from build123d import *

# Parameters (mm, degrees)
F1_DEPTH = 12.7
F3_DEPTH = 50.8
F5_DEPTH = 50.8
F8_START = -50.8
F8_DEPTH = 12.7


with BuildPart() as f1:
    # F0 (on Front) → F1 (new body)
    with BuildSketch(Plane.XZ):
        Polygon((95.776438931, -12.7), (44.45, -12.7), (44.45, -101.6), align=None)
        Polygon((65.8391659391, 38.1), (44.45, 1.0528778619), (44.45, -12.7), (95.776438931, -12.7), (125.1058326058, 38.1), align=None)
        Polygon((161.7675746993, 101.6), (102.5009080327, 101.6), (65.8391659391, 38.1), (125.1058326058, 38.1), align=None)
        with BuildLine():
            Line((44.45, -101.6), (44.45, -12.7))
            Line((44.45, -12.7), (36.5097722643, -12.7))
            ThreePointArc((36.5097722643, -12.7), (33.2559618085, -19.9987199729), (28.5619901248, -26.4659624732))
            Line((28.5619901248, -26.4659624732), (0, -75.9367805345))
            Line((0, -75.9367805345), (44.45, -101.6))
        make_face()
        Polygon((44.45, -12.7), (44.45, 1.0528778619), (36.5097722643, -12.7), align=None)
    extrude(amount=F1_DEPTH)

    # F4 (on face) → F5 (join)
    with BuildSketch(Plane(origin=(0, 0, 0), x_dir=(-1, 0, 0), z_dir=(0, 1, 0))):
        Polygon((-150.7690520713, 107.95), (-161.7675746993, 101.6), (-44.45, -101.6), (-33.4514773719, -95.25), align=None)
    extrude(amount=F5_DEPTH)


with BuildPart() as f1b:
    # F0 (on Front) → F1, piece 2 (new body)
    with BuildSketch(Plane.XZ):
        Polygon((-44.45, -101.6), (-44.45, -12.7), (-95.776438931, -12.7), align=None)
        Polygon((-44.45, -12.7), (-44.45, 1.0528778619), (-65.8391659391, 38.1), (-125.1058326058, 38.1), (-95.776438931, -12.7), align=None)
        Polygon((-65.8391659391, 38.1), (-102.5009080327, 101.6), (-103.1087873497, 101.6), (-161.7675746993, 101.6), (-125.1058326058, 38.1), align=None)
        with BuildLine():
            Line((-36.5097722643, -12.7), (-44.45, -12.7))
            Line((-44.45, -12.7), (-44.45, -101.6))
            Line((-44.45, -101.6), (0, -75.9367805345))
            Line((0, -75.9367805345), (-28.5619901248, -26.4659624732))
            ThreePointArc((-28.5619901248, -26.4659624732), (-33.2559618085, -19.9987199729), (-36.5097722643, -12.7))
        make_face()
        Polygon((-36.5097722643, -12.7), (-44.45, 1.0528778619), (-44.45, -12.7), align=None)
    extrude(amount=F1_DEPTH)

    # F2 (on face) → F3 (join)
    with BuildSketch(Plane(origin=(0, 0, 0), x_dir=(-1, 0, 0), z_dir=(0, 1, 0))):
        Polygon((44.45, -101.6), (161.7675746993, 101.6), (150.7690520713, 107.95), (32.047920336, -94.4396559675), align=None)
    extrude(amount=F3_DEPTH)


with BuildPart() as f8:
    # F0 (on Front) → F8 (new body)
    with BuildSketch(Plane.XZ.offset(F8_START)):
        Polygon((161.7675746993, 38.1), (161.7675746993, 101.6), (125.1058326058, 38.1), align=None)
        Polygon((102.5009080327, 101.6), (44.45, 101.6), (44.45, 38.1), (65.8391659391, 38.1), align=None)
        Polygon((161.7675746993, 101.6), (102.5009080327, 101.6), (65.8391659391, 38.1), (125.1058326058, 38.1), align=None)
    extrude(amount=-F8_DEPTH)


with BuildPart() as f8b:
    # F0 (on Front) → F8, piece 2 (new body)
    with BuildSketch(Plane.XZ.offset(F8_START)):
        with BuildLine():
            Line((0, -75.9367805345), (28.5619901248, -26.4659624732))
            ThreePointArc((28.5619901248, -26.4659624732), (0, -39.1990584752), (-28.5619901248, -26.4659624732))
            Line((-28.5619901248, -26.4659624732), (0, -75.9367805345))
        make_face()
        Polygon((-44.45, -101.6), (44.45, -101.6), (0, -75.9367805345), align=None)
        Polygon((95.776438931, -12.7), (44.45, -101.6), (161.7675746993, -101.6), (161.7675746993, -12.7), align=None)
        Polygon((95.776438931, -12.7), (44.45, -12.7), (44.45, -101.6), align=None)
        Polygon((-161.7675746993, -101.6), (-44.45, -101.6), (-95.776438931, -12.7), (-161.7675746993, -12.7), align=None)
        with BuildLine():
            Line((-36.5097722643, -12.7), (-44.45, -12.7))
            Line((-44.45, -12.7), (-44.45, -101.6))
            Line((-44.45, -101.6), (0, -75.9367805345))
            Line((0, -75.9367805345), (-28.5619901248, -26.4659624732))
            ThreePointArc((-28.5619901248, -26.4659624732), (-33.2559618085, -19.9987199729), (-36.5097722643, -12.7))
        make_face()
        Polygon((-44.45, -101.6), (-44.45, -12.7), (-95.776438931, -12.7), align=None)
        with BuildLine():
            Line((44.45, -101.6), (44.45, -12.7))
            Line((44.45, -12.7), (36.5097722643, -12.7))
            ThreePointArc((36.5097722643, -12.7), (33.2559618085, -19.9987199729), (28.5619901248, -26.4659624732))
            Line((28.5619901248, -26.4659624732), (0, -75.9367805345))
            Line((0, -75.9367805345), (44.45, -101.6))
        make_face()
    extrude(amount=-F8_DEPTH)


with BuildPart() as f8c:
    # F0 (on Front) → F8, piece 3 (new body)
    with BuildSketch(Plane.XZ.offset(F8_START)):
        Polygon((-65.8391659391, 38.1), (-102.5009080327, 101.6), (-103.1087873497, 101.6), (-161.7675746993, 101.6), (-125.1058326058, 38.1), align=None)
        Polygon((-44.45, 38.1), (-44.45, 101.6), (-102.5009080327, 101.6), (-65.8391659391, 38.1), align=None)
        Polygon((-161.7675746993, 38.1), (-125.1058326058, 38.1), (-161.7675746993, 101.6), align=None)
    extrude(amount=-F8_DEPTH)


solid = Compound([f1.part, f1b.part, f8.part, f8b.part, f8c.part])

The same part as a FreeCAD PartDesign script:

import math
import FreeCAD as App
import Part
import Sketcher
Q = App.Units.Quantity


def add_polygon(sketch, points):
    """Adds a closed chain of lines whose ends are joined by coincident constraints."""
    first, n = sketch.GeometryCount, len(points)
    for a, b in zip(points, points[1:] + points[:1]):
        sketch.addGeometry(Part.LineSegment(App.Vector(*a, 0), App.Vector(*b, 0)), False)
    for i in range(n):
        sketch.addConstraint(Sketcher.Constraint("Coincident", first + i, 2, first + (i + 1) % n, 1))

doc = App.newDocument("Part")
body = doc.addObject("PartDesign::Body", "Body")

# Sketch on XZ plane
sketch1 = body.newObject("Sketcher::SketchObject", "Sketch")
sketch1.AttachmentSupport = (doc.getObject("XZ_Plane"), [""])
sketch1.MapMode = "FlatFace"
sketch1.addGeometry(Part.LineSegment(App.Vector(29, -26, 0), App.Vector(0, -76, 0)), False)
sketch1.addGeometry(Part.LineSegment(App.Vector(0, -76, 0), App.Vector(44, -102, 0)), False)
sketch1.addGeometry(Part.LineSegment(App.Vector(44, -102, 0), App.Vector(162, 102, 0)), False)
sketch1.addGeometry(Part.LineSegment(App.Vector(162, 102, 0), App.Vector(103, 102, 0)), False)
sketch1.addGeometry(Part.LineSegment(App.Vector(103, 102, 0), App.Vector(66, 38, 0)), False)
sketch1.addGeometry(Part.LineSegment(App.Vector(66, 38, 0), App.Vector(37, -13, 0)), False)
sketch1.addGeometry(Part.ArcOfCircle(Part.Circle(App.Vector(0, -1, 0), App.Vector(0, 0, 1), 38), math.radians(-42), math.radians(-18)), False)
sketch1.addConstraint(Sketcher.Constraint("Coincident", 0, 2, 1, 1))
sketch1.addConstraint(Sketcher.Constraint("Coincident", 1, 2, 2, 1))
sketch1.addConstraint(Sketcher.Constraint("Coincident", 2, 2, 3, 1))
sketch1.addConstraint(Sketcher.Constraint("Coincident", 3, 2, 4, 1))
sketch1.addConstraint(Sketcher.Constraint("Coincident", 4, 2, 5, 1))
sketch1.addConstraint(Sketcher.Constraint("Coincident", 5, 2, 6, 2))
sketch1.addConstraint(Sketcher.Constraint("Coincident", 6, 1, 0, 1))
sketch1.addConstraint(Sketcher.Constraint("Horizontal", 3))
sketch1.addConstraint(Sketcher.Constraint("PointOnObject", 6, 3, -2))
sketch1.addConstraint(Sketcher.Constraint("PointOnObject", 0, 2, -2))
sketch1.addConstraint(Sketcher.Constraint("Perpendicular", 0, 1))
sketch1.addConstraint(Sketcher.Constraint("Perpendicular", 1, 2))
sketch1.addConstraint(Sketcher.Constraint("Parallel", 2, 4))
sketch1.addConstraint(Sketcher.Constraint("Parallel", 4, 5))
sketch1.addConstraint(Sketcher.Constraint("DistanceY", 1, 2, -1, 1, Q("4 in")))
sketch1.addConstraint(Sketcher.Constraint("DistanceY", -1, 1, 2, 2, Q("4 in")))
sketch1.addConstraint(Sketcher.Constraint("Angle", 0, Q("-120 deg")))
sketch1.addConstraint(Sketcher.Constraint("DistanceY", 5, 2, 4, 2, Q("2 in")))
sketch1.addConstraint(Sketcher.Constraint("DistanceY", -1, 1, 4, 2, Q("1.5 in")))
sketch1.addConstraint(Sketcher.Constraint("DistanceX", -1, 1, 1, 2, Q("1.75 in")))
sketch1.addConstraint(Sketcher.Constraint("Radius", 6, 38.400677))
sketch1.addConstraint(Sketcher.Constraint("DistanceY", 0, 2, 6, 3, 75.138399))
pad1 = body.newObject("PartDesign::Pad", "Pad")
pad1.Profile = sketch1
pad1.Length = Q("0.5 in")

# Sketch on XZ plane
sketch2 = body.newObject("Sketcher::SketchObject", "Sketch001")
sketch2.AttachmentSupport = (doc.getObject("XZ_Plane"), [""])
sketch2.MapMode = "FlatFace"
add_polygon(sketch2, [(151, 108), (162, 102), (44, -102), (33, -95)])  # lines 0-3
sketch2.addConstraint(Sketcher.Constraint("Perpendicular", 0, 1))
sketch2.addConstraint(Sketcher.Constraint("Perpendicular", 1, 2))
sketch2.addConstraint(Sketcher.Constraint("Perpendicular", 2, 3))
sketch2.addConstraint(Sketcher.Constraint("DistanceY", -1, 1, 0, 2, Q("4 in")))
sketch2.addConstraint(Sketcher.Constraint("DistanceY", 1, 2, -1, 1, Q("4 in")))
sketch2.addConstraint(Sketcher.Constraint("Angle", 0, Q("-30 deg")))
sketch2.addConstraint(Sketcher.Constraint("Distance", 0, Q("0.5 in")))
sketch2.addConstraint(Sketcher.Constraint("DistanceX", -1, 1, 1, 2, Q("1.75 in")))
pad2 = body.newObject("PartDesign::Pad", "Pad001")
pad2.Profile = sketch2
pad2.Length = Q("2 in")
pad2.Reversed = True
body2 = doc.addObject("PartDesign::Body", "Body001")

# Sketch on XZ plane
sketch3 = body2.newObject("Sketcher::SketchObject", "Sketch002")
sketch3.AttachmentSupport = (doc.getObject("XZ_Plane001"), [""])
sketch3.MapMode = "FlatFace"
sketch3.addGeometry(Part.ArcOfCircle(Part.Circle(App.Vector(0, -1, 0), App.Vector(0, 0, 1), 38), math.radians(-162), math.radians(-138)), False)
sketch3.addGeometry(Part.LineSegment(App.Vector(-37, -13, 0), App.Vector(-66, 38, 0)), False)
sketch3.addGeometry(Part.LineSegment(App.Vector(-66, 38, 0), App.Vector(-103, 102, 0)), False)
sketch3.addGeometry(Part.LineSegment(App.Vector(-103, 102, 0), App.Vector(-162, 102, 0)), False)
sketch3.addGeometry(Part.LineSegment(App.Vector(-162, 102, 0), App.Vector(-44, -102, 0)), False)
sketch3.addGeometry(Part.LineSegment(App.Vector(-44, -102, 0), App.Vector(0, -76, 0)), False)
sketch3.addGeometry(Part.LineSegment(App.Vector(0, -76, 0), App.Vector(-29, -26, 0)), False)
sketch3.addConstraint(Sketcher.Constraint("Coincident", 0, 1, 1, 1))
sketch3.addConstraint(Sketcher.Constraint("Coincident", 1, 2, 2, 1))
sketch3.addConstraint(Sketcher.Constraint("Coincident", 2, 2, 3, 1))
sketch3.addConstraint(Sketcher.Constraint("Coincident", 3, 2, 4, 1))
sketch3.addConstraint(Sketcher.Constraint("Coincident", 4, 2, 5, 1))
sketch3.addConstraint(Sketcher.Constraint("Coincident", 5, 2, 6, 1))
sketch3.addConstraint(Sketcher.Constraint("Coincident", 6, 2, 0, 2))
sketch3.addConstraint(Sketcher.Constraint("Horizontal", 3))
sketch3.addConstraint(Sketcher.Constraint("PointOnObject", 0, 3, -2))
sketch3.addConstraint(Sketcher.Constraint("PointOnObject", 5, 2, -2))
sketch3.addConstraint(Sketcher.Constraint("Parallel", 1, 2))
sketch3.addConstraint(Sketcher.Constraint("Parallel", 2, 4))
sketch3.addConstraint(Sketcher.Constraint("Perpendicular", 4, 5))
sketch3.addConstraint(Sketcher.Constraint("Perpendicular", 5, 6))
sketch3.addConstraint(Sketcher.Constraint("DistanceY", -1, 1, 2, 2, Q("4 in")))
sketch3.addConstraint(Sketcher.Constraint("DistanceY", 4, 2, -1, 1, Q("4 in")))
sketch3.addConstraint(Sketcher.Constraint("Angle", 1, Q("120 deg")))
sketch3.addConstraint(Sketcher.Constraint("DistanceY", 0, 1, 1, 2, Q("2 in")))
sketch3.addConstraint(Sketcher.Constraint("DistanceY", 0, 1, -1, 1, Q("0.5 in")))
sketch3.addConstraint(Sketcher.Constraint("DistanceX", 4, 2, -1, 1, Q("1.75 in")))
sketch3.addConstraint(Sketcher.Constraint("Radius", 0, 38.400677))
sketch3.addConstraint(Sketcher.Constraint("DistanceY", 5, 2, 0, 3, 75.138399))
pad3 = body2.newObject("PartDesign::Pad", "Pad002")
pad3.Profile = sketch3
pad3.Length = Q("0.5 in")

# Sketch on XZ plane
sketch4 = body2.newObject("Sketcher::SketchObject", "Sketch003")
sketch4.AttachmentSupport = (doc.getObject("XZ_Plane001"), [""])
sketch4.MapMode = "FlatFace"
add_polygon(sketch4, [(-44, -102), (-162, 102), (-151, 108), (-32, -94)])  # lines 0-3
sketch4.addConstraint(Sketcher.Constraint("Perpendicular", 0, 1))
sketch4.addConstraint(Sketcher.Constraint("Parallel", 1, 3))
sketch4.addConstraint(Sketcher.Constraint("DistanceY", -1, 1, 0, 2, Q("4 in")))
sketch4.addConstraint(Sketcher.Constraint("DistanceY", 3, 2, -1, 1, Q("4 in")))
sketch4.addConstraint(Sketcher.Constraint("Angle", 0, Q("120 deg")))
sketch4.addConstraint(Sketcher.Constraint("Distance", 1, Q("0.5 in")))
sketch4.addConstraint(Sketcher.Constraint("DistanceX", 3, 2, -1, 1, Q("1.75 in")))
sketch4.addConstraint(Sketcher.Constraint("Distance", 3, 14.320688))
pad4 = body2.newObject("PartDesign::Pad", "Pad003")
pad4.Profile = sketch4
pad4.Length = Q("2 in")
pad4.Reversed = True
body3 = doc.addObject("PartDesign::Body", "Body002")

# Sketch on XZ plane
sketch5 = body3.newObject("Sketcher::SketchObject", "Sketch004")
sketch5.AttachmentSupport = (doc.getObject("XZ_Plane002"), [""])
sketch5.MapMode = "FlatFace"
sketch5.AttachmentOffset = App.Placement(App.Vector(0, 0, -2 * 25.4), App.Rotation())
add_polygon(sketch5, [(162, 38), (162, 102), (44, 102), (44, 38)])  # lines 0-3
sketch5.addConstraint(Sketcher.Constraint("Vertical", 0))
sketch5.addConstraint(Sketcher.Constraint("Horizontal", 1))
sketch5.addConstraint(Sketcher.Constraint("Vertical", 2))
sketch5.addConstraint(Sketcher.Constraint("Horizontal", 3))
sketch5.addConstraint(Sketcher.Constraint("DistanceY", 0, 1, 0, 2, Q("2.5 in")))
sketch5.addConstraint(Sketcher.Constraint("DistanceY", -1, 1, 0, 2, Q("4 in")))
sketch5.addConstraint(Sketcher.Constraint("DistanceX", -1, 1, 1, 2, Q("1.75 in")))
sketch5.addConstraint(Sketcher.Constraint("DistanceX", 1, 2, 1, 1, 117.317575))
pad5 = body3.newObject("PartDesign::Pad", "Pad004")
pad5.Profile = sketch5
pad5.Length = Q("0.5 in")
pad5.Reversed = True
body4 = doc.addObject("PartDesign::Body", "Body003")

# Sketch on XZ plane
sketch6 = body4.newObject("Sketcher::SketchObject", "Sketch005")
sketch6.AttachmentSupport = (doc.getObject("XZ_Plane003"), [""])
sketch6.MapMode = "FlatFace"
sketch6.AttachmentOffset = App.Placement(App.Vector(0, 0, -2 * 25.4), App.Rotation())
sketch6.addGeometry(Part.ArcOfCircle(Part.Circle(App.Vector(0, -1, 0), App.Vector(0, 0, 1), 38), math.radians(-138), math.radians(-42)), False)
sketch6.addGeometry(Part.ArcOfCircle(Part.Circle(App.Vector(0, -1, 0), App.Vector(0, 0, 1), 38), math.radians(-162), math.radians(-138)), False)
sketch6.addGeometry(Part.LineSegment(App.Vector(-37, -13, 0), App.Vector(-162, -13, 0)), False)
sketch6.addGeometry(Part.LineSegment(App.Vector(-162, -13, 0), App.Vector(-162, -102, 0)), False)
sketch6.addGeometry(Part.LineSegment(App.Vector(-162, -102, 0), App.Vector(162, -102, 0)), False)
sketch6.addGeometry(Part.LineSegment(App.Vector(162, -102, 0), App.Vector(162, -13, 0)), False)
sketch6.addGeometry(Part.LineSegment(App.Vector(162, -13, 0), App.Vector(37, -13, 0)), False)
sketch6.addGeometry(Part.ArcOfCircle(Part.Circle(App.Vector(0, -1, 0), App.Vector(0, 0, 1), 38), math.radians(-42), math.radians(-18)), False)
sketch6.addConstraint(Sketcher.Constraint("Tangent", 0, 1, 1, 2))
sketch6.addConstraint(Sketcher.Constraint("Coincident", 1, 1, 2, 1))
sketch6.addConstraint(Sketcher.Constraint("Coincident", 2, 2, 3, 1))
sketch6.addConstraint(Sketcher.Constraint("Coincident", 3, 2, 4, 1))
sketch6.addConstraint(Sketcher.Constraint("Coincident", 4, 2, 5, 1))
sketch6.addConstraint(Sketcher.Constraint("Coincident", 5, 2, 6, 1))
sketch6.addConstraint(Sketcher.Constraint("Coincident", 6, 2, 7, 2))
sketch6.addConstraint(Sketcher.Constraint("Tangent", 7, 1, 0, 2))
sketch6.addConstraint(Sketcher.Constraint("Horizontal", 2))
sketch6.addConstraint(Sketcher.Constraint("Vertical", 3))
sketch6.addConstraint(Sketcher.Constraint("Horizontal", 4))
sketch6.addConstraint(Sketcher.Constraint("Vertical", 5))
sketch6.addConstraint(Sketcher.Constraint("Horizontal", 6))
sketch6.addConstraint(Sketcher.Constraint("Equal", 0, 1))
sketch6.addConstraint(Sketcher.Constraint("Equal", 1, 7))
sketch6.addConstraint(Sketcher.Constraint("Symmetric", 2, 2, 5, 2, -2))
sketch6.addConstraint(Sketcher.Constraint("Symmetric", 0, 1, 7, 1, -2))
sketch6.addConstraint(Sketcher.Constraint("DistanceY", 3, 2, 3, 1, Q("3.5 in")))
sketch6.addConstraint(Sketcher.Constraint("DistanceY", 3, 2, -1, 1, Q("4 in")))
sketch6.addConstraint(Sketcher.Constraint("Radius", 0, 38.400677))
sketch6.addConstraint(Sketcher.Constraint("DistanceX", 4, 1, 4, 2, 323.535149))
sketch6.addConstraint(Sketcher.Constraint("DistanceX", 2, 2, 2, 1, 125.257802))
sketch6.addConstraint(Sketcher.Constraint("DistanceX", 0, 1, -1, 1, 28.56199))
pad6 = body4.newObject("PartDesign::Pad", "Pad005")
pad6.Profile = sketch6
pad6.Length = Q("0.5 in")
pad6.Reversed = True
body5 = doc.addObject("PartDesign::Body", "Body004")

# Sketch on XZ plane
sketch7 = body5.newObject("Sketcher::SketchObject", "Sketch006")
sketch7.AttachmentSupport = (doc.getObject("XZ_Plane004"), [""])
sketch7.MapMode = "FlatFace"
sketch7.AttachmentOffset = App.Placement(App.Vector(0, 0, -2 * 25.4), App.Rotation())
add_polygon(sketch7, [(-44, 38), (-44, 102), (-162, 102), (-162, 38)])  # lines 0-3
sketch7.addConstraint(Sketcher.Constraint("Vertical", 0))
sketch7.addConstraint(Sketcher.Constraint("Horizontal", 1))
sketch7.addConstraint(Sketcher.Constraint("Vertical", 2))
sketch7.addConstraint(Sketcher.Constraint("Horizontal", 3))
sketch7.addConstraint(Sketcher.Constraint("DistanceY", 0, 1, 0, 2, Q("2.5 in")))
sketch7.addConstraint(Sketcher.Constraint("DistanceY", -1, 1, 0, 2, Q("4 in")))
sketch7.addConstraint(Sketcher.Constraint("DistanceX", 0, 2, -1, 1, Q("1.75 in")))
sketch7.addConstraint(Sketcher.Constraint("DistanceX", 1, 2, 1, 1, 117.317575))
pad7 = body5.newObject("PartDesign::Pad", "Pad006")
pad7.Profile = sketch7
pad7.Length = Q("0.5 in")
pad7.Reversed = True

doc.recompute()
